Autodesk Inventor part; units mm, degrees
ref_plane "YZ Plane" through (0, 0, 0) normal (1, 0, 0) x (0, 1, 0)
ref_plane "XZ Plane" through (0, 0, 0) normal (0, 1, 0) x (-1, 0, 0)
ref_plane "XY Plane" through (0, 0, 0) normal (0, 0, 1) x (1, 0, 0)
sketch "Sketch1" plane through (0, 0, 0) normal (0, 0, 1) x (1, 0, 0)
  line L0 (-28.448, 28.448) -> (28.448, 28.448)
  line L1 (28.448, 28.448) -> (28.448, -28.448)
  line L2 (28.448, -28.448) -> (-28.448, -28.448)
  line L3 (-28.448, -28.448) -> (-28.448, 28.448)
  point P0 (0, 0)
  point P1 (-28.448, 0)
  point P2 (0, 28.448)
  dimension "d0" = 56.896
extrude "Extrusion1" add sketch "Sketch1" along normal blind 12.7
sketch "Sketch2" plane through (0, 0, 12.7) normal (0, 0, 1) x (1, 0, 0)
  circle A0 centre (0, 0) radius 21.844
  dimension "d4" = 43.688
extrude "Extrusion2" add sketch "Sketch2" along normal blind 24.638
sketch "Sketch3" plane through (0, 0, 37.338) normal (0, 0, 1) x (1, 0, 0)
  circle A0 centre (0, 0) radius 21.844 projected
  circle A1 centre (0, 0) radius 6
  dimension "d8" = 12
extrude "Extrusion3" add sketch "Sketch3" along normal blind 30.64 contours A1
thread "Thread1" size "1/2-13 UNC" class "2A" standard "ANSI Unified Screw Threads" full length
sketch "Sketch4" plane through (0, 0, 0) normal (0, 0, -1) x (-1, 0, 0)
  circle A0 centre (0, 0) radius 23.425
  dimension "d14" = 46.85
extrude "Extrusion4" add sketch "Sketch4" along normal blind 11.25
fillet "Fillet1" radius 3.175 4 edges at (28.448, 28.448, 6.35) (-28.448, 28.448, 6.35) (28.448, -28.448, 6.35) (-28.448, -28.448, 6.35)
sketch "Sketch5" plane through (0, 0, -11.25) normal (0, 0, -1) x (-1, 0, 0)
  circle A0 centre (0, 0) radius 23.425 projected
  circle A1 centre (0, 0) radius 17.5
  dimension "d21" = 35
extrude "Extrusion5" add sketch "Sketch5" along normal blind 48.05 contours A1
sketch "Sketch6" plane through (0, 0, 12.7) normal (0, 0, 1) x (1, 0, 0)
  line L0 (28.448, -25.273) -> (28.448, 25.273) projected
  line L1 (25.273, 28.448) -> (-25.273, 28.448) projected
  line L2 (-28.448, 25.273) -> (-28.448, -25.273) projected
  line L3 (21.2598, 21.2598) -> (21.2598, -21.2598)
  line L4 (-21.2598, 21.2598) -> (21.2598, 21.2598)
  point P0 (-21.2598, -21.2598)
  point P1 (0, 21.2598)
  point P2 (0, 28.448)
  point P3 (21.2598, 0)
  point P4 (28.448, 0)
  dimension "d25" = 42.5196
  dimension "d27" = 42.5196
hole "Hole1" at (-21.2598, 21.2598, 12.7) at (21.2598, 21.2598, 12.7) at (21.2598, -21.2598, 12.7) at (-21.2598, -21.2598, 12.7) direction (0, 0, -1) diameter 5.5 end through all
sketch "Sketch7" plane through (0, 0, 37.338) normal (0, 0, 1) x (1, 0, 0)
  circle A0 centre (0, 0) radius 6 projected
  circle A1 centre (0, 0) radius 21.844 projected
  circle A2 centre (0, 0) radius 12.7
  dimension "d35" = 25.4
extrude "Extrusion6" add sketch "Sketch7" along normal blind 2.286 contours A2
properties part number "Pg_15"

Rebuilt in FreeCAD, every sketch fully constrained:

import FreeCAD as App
import Part
import Sketcher
Q = App.Units.Quantity


def edges_at(feature, points):
    """Names of the edges that pass closest to the given points."""
    edges = feature.Shape.Edges
    near = lambda p: min(range(len(edges)), key=lambda i: edges[i].distToShape(Part.Vertex(*p))[0])
    return sorted({f"Edge{near(p) + 1}" for p in points})

doc = App.newDocument("Part")
body = doc.addObject("PartDesign::Body", "Body")

sketch1 = body.newObject("Sketcher::SketchObject", "Sketch")
sketch1.AttachmentSupport = (doc.getObject("XY_Plane"), [""])
sketch1.MapMode = "FlatFace"
sketch1.addGeometry(Part.LineSegment(App.Vector(28, 28, 0), App.Vector(-28, 28, 0)), False)
sketch1.addGeometry(Part.LineSegment(App.Vector(-28, 28, 0), App.Vector(-28, -28, 0)), False)
sketch1.addGeometry(Part.LineSegment(App.Vector(-28, -28, 0), App.Vector(28, -28, 0)), False)
sketch1.addGeometry(Part.LineSegment(App.Vector(28, -28, 0), App.Vector(28, 28, 0)), False)
sketch1.addConstraint(Sketcher.Constraint("Coincident", 0, 2, 1, 1))
sketch1.addConstraint(Sketcher.Constraint("Coincident", 1, 2, 2, 1))
sketch1.addConstraint(Sketcher.Constraint("Coincident", 2, 2, 3, 1))
sketch1.addConstraint(Sketcher.Constraint("Coincident", 3, 2, 0, 1))
sketch1.addConstraint(Sketcher.Constraint("Horizontal", 0))
sketch1.addConstraint(Sketcher.Constraint("Vertical", 1))
sketch1.addConstraint(Sketcher.Constraint("Horizontal", 2))
sketch1.addConstraint(Sketcher.Constraint("Vertical", 3))
sketch1.addConstraint(Sketcher.Constraint("Symmetric", 0, 2, 2, 2, -1, 1))
sketch1.addConstraint(Sketcher.Constraint("Equal", 2, 1))
sketch1.addConstraint(Sketcher.Constraint("DistanceX", 0, 2, 0, 1, Q("2.24 in")))
pad1 = body.newObject("PartDesign::Pad", "Pad")
pad1.Profile = sketch1
pad1.Length = Q("0.5 in")

sketch2 = body.newObject("Sketcher::SketchObject", "Sketch001")
sketch2.AttachmentSupport = (doc.getObject("XY_Plane"), [""])
sketch2.MapMode = "FlatFace"
sketch2.AttachmentOffset = App.Placement(App.Vector(0, 0, 0.5 * 25.4), App.Rotation())
sketch2.addGeometry(Part.Circle(App.Vector(0, 0, 0), App.Vector(0, 0, 1), 22), False)
sketch2.addConstraint(Sketcher.Constraint("Coincident", 0, 3, -1, 1))
sketch2.addConstraint(Sketcher.Constraint("Diameter", 0, Q("1.72 in")))
pad2 = body.newObject("PartDesign::Pad", "Pad001")
pad2.Profile = sketch2
pad2.Length = Q("0.97 in")

sketch3 = body.newObject("Sketcher::SketchObject", "Sketch002")
sketch3.AttachmentSupport = (doc.getObject("XY_Plane"), [""])
sketch3.MapMode = "FlatFace"
sketch3.AttachmentOffset = App.Placement(App.Vector(0, 0, 1.47 * 25.4), App.Rotation())
sketch3.addGeometry(Part.Circle(App.Vector(0, 0, 0), App.Vector(0, 0, 1), 6), False)
sketch3.addConstraint(Sketcher.Constraint("Coincident", 0, 3, -1, 1))
sketch3.addConstraint(Sketcher.Constraint("Diameter", 0, Q("12 mm")))
pad3 = body.newObject("PartDesign::Pad", "Pad002")
pad3.Profile = sketch3
pad3.Length = Q("1.2062992 in")

sketch4 = body.newObject("Sketcher::SketchObject", "Sketch003")
sketch4.AttachmentSupport = (doc.getObject("XY_Plane"), [""])
sketch4.MapMode = "FlatFace"
sketch4.addGeometry(Part.Circle(App.Vector(0, 0, 0), App.Vector(0, 0, 1), 23), False)
sketch4.addConstraint(Sketcher.Constraint("Coincident", 0, 3, -1, 1))
sketch4.addConstraint(Sketcher.Constraint("Diameter", 0, Q("1.8445 in")))
pad4 = body.newObject("PartDesign::Pad", "Pad003")
pad4.Profile = sketch4
pad4.Length = 11.25
pad4.Reversed = True
doc.recompute()

fillet = body.newObject("PartDesign::Fillet", "Fillet")
fillet.Base = (pad4, edges_at(pad4, [
    (28.448, 28.448, 6.35),
    (-28.448, 28.448, 6.35),
    (28.448, -28.448, 6.35),
    (-28.448, -28.448, 6.35),
]))
fillet.Radius = Q("0.125 in")

sketch5 = body.newObject("Sketcher::SketchObject", "Sketch004")
sketch5.AttachmentSupport = (doc.getObject("XY_Plane"), [""])
sketch5.MapMode = "FlatFace"
sketch5.AttachmentOffset = App.Placement(App.Vector(0, 0, -11.25), App.Rotation())
sketch5.addGeometry(Part.Circle(App.Vector(0, 0, 0), App.Vector(0, 0, 1), 18), False)
sketch5.addConstraint(Sketcher.Constraint("Coincident", 0, 3, -1, 1))
sketch5.addConstraint(Sketcher.Constraint("Diameter", 0, Q("35 mm")))
pad5 = body.newObject("PartDesign::Pad", "Pad004")
pad5.Profile = sketch5
pad5.Length = 48.05
pad5.Reversed = True

sketch6 = body.newObject("Sketcher::SketchObject", "Sketch005")
sketch6.AttachmentSupport = (doc.getObject("XY_Plane"), [""])
sketch6.MapMode = "FlatFace"
sketch6.AttachmentOffset = App.Placement(App.Vector(0, 0, 0.5 * 25.4), App.Rotation())
sketch6.addGeometry(Part.Circle(App.Vector(-21.3, 21.3, 0), App.Vector(0, 0, 1), 2.8), False)
sketch6.addGeometry(Part.Circle(App.Vector(21.3, 21.3, 0), App.Vector(0, 0, 1), 2.8), False)
sketch6.addGeometry(Part.Circle(App.Vector(21.3, -21.3, 0), App.Vector(0, 0, 1), 2.8), False)
sketch6.addGeometry(Part.Circle(App.Vector(-21.3, -21.3, 0), App.Vector(0, 0, 1), 2.8), False)
sketch6.addConstraint(Sketcher.Constraint("Equal", 0, 1))
sketch6.addConstraint(Sketcher.Constraint("Equal", 1, 2))
sketch6.addConstraint(Sketcher.Constraint("Equal", 2, 3))
sketch6.addConstraint(Sketcher.Constraint("Symmetric", 0, 3, 2, 3, -1, 1))
sketch6.addConstraint(Sketcher.Constraint("Symmetric", 1, 3, 3, 3, -1, 1))
sketch6.addConstraint(Sketcher.Constraint("Symmetric", 0, 3, 1, 3, -2))
sketch6.addConstraint(Sketcher.Constraint("Diameter", 0, Q("5.5 mm")))
sketch6.addConstraint(Sketcher.Constraint("DistanceX", 0, 3, -1, 1, Q("0.837 in")))
sketch6.addConstraint(Sketcher.Constraint("DistanceY", -1, 1, 0, 3, Q("0.837 in")))
doc.recompute()
hole = body.newObject("PartDesign::Hole", "Hole")
hole.Profile = sketch6
hole.ThreadType = "None"
hole.Diameter = 5.5
hole.DepthType = "ThroughAll"

sketch7 = body.newObject("Sketcher::SketchObject", "Sketch006")
sketch7.AttachmentSupport = (doc.getObject("XY_Plane"), [""])
sketch7.MapMode = "FlatFace"
sketch7.AttachmentOffset = App.Placement(App.Vector(0, 0, 1.47 * 25.4), App.Rotation())
sketch7.addGeometry(Part.Circle(App.Vector(0, 0, 0), App.Vector(0, 0, 1), 13), False)
sketch7.addGeometry(Part.Circle(App.Vector(0, 0, 0), App.Vector(0, 0, 1), 6), False)
sketch7.addConstraint(Sketcher.Constraint("Coincident", 0, 3, -1, 1))
sketch7.addConstraint(Sketcher.Constraint("Coincident", 1, 3, -1, 1))
sketch7.addConstraint(Sketcher.Constraint("Diameter", 0, Q("1 in")))
sketch7.addConstraint(Sketcher.Constraint("Diameter", 1, Q("12 mm")))
pad6 = body.newObject("PartDesign::Pad", "Pad005")
pad6.Profile = sketch7
pad6.Length = Q("0.09 in")

doc.recompute()
